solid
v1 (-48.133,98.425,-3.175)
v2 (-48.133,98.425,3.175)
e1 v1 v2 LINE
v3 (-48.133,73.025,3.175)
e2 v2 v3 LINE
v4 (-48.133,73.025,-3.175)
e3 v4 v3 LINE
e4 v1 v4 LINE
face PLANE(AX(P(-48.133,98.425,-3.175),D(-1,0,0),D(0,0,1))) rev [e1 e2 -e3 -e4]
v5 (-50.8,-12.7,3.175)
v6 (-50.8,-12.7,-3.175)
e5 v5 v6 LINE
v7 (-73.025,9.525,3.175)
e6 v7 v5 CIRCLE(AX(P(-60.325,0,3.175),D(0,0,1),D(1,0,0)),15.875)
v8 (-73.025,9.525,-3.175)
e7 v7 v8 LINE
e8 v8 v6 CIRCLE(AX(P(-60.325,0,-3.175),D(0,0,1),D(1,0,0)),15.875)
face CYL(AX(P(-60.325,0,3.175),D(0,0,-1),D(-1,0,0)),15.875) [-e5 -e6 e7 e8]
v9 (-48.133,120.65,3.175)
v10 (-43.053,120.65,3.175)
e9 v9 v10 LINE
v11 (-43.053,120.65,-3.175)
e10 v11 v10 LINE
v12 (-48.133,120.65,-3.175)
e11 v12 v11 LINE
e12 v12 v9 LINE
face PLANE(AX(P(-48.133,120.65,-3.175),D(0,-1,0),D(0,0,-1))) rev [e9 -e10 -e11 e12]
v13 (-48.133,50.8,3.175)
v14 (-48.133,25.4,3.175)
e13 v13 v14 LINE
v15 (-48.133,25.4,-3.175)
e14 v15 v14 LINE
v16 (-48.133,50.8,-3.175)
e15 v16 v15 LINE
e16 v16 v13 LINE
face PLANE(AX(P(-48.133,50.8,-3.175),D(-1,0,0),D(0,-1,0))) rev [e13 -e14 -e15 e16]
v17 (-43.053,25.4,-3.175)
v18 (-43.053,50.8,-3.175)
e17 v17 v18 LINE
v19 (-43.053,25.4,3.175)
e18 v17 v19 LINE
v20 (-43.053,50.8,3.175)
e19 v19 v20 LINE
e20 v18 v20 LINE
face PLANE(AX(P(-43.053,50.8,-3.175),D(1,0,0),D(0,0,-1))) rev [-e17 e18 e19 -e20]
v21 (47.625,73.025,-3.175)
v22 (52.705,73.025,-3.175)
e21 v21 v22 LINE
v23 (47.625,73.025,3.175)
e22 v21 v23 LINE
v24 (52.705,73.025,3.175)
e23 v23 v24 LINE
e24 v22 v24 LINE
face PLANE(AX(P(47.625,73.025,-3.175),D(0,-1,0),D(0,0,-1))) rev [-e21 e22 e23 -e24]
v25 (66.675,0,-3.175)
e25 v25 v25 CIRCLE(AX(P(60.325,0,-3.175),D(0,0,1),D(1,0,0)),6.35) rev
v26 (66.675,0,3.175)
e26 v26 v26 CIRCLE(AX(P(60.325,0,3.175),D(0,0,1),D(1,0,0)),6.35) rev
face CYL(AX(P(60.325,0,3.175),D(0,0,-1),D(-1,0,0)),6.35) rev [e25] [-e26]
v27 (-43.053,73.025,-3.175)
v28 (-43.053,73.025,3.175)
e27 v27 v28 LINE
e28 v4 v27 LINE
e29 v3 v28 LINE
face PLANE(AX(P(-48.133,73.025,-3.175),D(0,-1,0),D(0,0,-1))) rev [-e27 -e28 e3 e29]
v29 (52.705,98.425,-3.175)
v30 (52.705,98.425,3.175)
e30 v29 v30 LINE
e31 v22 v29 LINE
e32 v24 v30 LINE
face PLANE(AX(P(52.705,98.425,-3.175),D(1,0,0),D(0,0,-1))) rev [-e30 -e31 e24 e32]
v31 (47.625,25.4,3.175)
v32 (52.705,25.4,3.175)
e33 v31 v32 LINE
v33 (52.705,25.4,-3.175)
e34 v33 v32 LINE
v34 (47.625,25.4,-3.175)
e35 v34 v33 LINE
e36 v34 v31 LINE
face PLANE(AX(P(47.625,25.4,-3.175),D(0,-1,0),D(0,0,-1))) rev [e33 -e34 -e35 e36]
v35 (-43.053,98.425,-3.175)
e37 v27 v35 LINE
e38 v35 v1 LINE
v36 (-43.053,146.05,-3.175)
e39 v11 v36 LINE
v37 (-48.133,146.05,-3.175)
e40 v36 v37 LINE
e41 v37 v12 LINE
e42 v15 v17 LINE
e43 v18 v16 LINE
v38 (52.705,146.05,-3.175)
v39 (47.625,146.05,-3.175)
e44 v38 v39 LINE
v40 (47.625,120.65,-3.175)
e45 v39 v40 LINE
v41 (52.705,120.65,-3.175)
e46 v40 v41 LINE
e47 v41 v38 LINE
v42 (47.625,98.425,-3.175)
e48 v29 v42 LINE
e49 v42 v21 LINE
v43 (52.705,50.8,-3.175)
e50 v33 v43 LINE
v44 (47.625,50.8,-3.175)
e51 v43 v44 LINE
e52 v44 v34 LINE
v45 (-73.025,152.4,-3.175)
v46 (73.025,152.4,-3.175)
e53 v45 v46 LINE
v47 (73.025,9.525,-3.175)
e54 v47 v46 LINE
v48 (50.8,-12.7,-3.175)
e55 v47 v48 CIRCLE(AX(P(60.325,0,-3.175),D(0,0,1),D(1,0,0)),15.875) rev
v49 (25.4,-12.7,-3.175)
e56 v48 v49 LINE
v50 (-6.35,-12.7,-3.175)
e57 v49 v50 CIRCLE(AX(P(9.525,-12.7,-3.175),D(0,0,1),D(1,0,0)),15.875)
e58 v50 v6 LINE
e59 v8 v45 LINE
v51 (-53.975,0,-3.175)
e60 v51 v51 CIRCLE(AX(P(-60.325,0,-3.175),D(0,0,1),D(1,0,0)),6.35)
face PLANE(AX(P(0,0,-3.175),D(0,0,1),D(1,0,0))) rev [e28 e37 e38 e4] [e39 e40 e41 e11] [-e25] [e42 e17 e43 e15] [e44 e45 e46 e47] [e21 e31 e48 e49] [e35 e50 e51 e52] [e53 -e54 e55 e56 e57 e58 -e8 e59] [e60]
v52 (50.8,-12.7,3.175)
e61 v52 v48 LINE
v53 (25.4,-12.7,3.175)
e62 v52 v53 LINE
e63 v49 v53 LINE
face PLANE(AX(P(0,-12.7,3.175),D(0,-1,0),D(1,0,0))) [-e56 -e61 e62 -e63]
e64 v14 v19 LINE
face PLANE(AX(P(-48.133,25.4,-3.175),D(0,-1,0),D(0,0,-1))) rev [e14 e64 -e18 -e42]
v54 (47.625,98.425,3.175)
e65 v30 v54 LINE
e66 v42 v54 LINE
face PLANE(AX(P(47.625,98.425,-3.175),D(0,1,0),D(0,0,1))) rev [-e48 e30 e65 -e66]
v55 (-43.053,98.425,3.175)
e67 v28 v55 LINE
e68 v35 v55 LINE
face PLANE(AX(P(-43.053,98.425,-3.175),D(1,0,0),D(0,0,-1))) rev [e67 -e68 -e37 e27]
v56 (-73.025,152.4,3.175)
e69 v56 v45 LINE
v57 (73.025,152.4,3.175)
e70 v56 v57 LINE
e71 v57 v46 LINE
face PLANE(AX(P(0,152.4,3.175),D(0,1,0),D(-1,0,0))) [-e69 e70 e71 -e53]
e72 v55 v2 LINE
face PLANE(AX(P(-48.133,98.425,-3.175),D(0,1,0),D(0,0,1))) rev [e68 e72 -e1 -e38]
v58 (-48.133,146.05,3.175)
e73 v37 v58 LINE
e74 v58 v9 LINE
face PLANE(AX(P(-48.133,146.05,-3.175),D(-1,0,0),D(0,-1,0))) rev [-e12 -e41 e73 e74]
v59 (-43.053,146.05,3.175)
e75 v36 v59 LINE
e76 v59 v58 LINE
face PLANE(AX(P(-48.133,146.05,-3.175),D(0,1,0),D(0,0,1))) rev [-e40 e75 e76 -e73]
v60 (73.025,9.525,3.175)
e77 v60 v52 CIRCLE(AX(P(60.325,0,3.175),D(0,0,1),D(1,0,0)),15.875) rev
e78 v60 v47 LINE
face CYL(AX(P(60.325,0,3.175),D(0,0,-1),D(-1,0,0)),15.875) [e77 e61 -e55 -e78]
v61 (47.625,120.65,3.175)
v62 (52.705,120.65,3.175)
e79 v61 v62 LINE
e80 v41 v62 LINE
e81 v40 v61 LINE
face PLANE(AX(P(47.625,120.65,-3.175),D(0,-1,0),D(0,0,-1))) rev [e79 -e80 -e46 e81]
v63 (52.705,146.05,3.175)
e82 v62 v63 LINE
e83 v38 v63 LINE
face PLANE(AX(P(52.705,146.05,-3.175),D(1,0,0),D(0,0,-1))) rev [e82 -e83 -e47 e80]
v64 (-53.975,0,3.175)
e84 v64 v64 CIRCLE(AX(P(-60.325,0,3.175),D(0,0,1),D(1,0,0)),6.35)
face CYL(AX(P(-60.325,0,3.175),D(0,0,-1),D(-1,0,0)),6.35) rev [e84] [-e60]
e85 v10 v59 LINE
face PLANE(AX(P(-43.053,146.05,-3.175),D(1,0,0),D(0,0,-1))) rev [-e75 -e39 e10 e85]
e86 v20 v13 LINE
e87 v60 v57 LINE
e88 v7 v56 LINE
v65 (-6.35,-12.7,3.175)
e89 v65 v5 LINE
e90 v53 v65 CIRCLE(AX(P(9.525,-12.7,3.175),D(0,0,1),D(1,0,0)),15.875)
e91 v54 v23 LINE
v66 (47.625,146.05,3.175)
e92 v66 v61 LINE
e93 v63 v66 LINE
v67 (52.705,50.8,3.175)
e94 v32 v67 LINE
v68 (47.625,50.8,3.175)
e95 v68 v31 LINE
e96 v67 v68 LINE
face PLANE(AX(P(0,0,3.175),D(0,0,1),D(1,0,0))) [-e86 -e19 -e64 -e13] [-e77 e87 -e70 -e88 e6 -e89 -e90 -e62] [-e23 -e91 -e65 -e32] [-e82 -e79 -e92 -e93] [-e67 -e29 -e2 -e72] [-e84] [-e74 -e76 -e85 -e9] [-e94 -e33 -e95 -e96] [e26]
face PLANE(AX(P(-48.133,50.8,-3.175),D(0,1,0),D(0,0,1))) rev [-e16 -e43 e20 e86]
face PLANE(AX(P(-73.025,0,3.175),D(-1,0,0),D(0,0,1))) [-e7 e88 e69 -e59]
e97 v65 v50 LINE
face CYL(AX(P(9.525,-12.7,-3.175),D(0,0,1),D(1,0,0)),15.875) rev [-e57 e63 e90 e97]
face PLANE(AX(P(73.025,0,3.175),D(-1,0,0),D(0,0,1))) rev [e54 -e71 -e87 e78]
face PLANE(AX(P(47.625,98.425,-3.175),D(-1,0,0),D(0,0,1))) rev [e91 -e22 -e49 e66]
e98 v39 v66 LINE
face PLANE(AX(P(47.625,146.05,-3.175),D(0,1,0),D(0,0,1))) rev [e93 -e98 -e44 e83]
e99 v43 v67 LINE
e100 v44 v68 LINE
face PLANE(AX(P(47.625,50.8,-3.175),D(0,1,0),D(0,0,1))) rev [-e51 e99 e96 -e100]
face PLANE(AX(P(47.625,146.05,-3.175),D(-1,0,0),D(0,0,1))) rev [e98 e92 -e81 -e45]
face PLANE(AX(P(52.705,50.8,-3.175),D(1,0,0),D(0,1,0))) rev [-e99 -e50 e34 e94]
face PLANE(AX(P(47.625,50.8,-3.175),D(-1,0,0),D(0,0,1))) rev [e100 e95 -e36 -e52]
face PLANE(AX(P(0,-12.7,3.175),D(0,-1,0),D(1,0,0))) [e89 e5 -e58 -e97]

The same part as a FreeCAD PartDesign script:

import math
import FreeCAD as App
import Part
import Sketcher

V = App.Vector
Q = App.Units.Quantity


def add_polygon(sketch, points):
    """Adds a closed chain of lines whose ends are joined by coincident constraints."""
    first, n = sketch.GeometryCount, len(points)
    for a, b in zip(points, points[1:] + points[:1]):
        sketch.addGeometry(Part.LineSegment(App.Vector(*a, 0), App.Vector(*b, 0)), False)
    for i in range(n):
        sketch.addConstraint(Sketcher.Constraint("Coincident", first + i, 2, first + (i + 1) % n, 1))

doc = App.newDocument("Part")
body = doc.addObject("PartDesign::Body", "Body")

# Sketch on XY plane
sketch1 = body.newObject("Sketcher::SketchObject", "Sketch")
sketch1.AttachmentSupport = (doc.getObject("XY_Plane"), [""])
sketch1.MapMode = "FlatFace"
sketch1.addGeometry([
    Part.ArcOfCircle(Part.Circle(V(60, 0, 0), V(0, 0, 1), 16), math.radians(-127), math.radians(37)),  # 0
    Part.LineSegment(V(73, 10, 0), V(73, 152, 0)),  # 1
    Part.LineSegment(V(73, 152, 0), V(-73, 152, 0)),  # 2
    Part.LineSegment(V(-73, 152, 0), V(-73, 10, 0)),  # 3
    Part.ArcOfCircle(Part.Circle(V(-60, 0, 0), V(0, 0, 1), 16), math.radians(143), math.radians(307)),  # 4
    Part.LineSegment(V(-51, -13, 0), V(51, -13, 0)),  # 5
    Part.Circle(V(-60, 0, 0), V(0, 0, 1), 6),  # 6
    Part.Circle(V(60, 0, 0), V(0, 0, 1), 6),  # 7
], False)
sketch1.addConstraint([
    Sketcher.Constraint("Coincident", 0, 2, 1, 1),
    Sketcher.Constraint("Coincident", 1, 2, 2, 1),
    Sketcher.Constraint("Coincident", 2, 2, 3, 1),
    Sketcher.Constraint("Coincident", 3, 2, 4, 1),
    Sketcher.Constraint("Coincident", 4, 2, 5, 1),
    Sketcher.Constraint("Coincident", 5, 2, 0, 1),
    Sketcher.Constraint("Vertical", 1),
    Sketcher.Constraint("Horizontal", 2),
    Sketcher.Constraint("Vertical", 3),
    Sketcher.Constraint("Horizontal", 5),
    Sketcher.Constraint("Coincident", 6, 3, 4, 3),
    Sketcher.Constraint("Coincident", 7, 3, 0, 3),
    Sketcher.Constraint("Equal", 0, 4),
    Sketcher.Constraint("Equal", 6, 7),
    Sketcher.Constraint("Symmetric", 0, 3, 4, 3, -1, 1),
    Sketcher.Constraint("Symmetric", 0, 2, 3, 2, -2),
    Sketcher.Constraint("Diameter", 6, Q("0.5 in")),
    Sketcher.Constraint("DistanceX", 5, 1, 5, 2, Q("4 in")),
    Sketcher.Constraint("DistanceY", -1, 1, 1, 2, Q("6 in")),
    Sketcher.Constraint("Radius", 0, Q("0.625 in")),
    Sketcher.Constraint("DistanceX", 2, 2, 2, 1, Q("5.75 in")),
    Sketcher.Constraint("DistanceY", 4, 2, -1, 1, Q("0.5 in")),
])
pad1 = body.newObject("PartDesign::Pad", "Pad")
pad1.Profile = sketch1
pad1.Length = Q("0.25 in")
pad1.Midplane = True

# Sketch on XY plane
sketch2 = body.newObject("Sketcher::SketchObject", "Sketch001")
sketch2.AttachmentSupport = (doc.getObject("XY_Plane"), [""])
sketch2.MapMode = "FlatFace"
sketch2.AttachmentOffset = App.Placement(V(0, 0, 0.125 * 25.4), App.Rotation())
add_polygon(sketch2, [(-48, 146), (-48, 121), (-43, 121), (-43, 146)])  # lines 0-3
add_polygon(sketch2, [(-48, 98), (-48, 73), (-43, 73), (-43, 98)])  # lines 4-7
add_polygon(sketch2, [(-48, 51), (-48, 25), (-43, 25), (-43, 51)])  # lines 8-11
add_polygon(sketch2, [(48, 146), (48, 121), (53, 121), (53, 146)])  # lines 12-15
add_polygon(sketch2, [(48, 51), (48, 25), (53, 25), (53, 51)])  # lines 16-19
add_polygon(sketch2, [(48, 98), (48, 73), (53, 73), (53, 98)])  # lines 20-23
sketch2.addConstraint([
    Sketcher.Constraint("Vertical", 0),
    Sketcher.Constraint("Horizontal", 1),
    Sketcher.Constraint("Vertical", 2),
    Sketcher.Constraint("Horizontal", 3),
    Sketcher.Constraint("Vertical", 4),
    Sketcher.Constraint("Horizontal", 5),
    Sketcher.Constraint("Vertical", 6),
    Sketcher.Constraint("Horizontal", 7),
    Sketcher.Constraint("Vertical", 8),
    Sketcher.Constraint("Horizontal", 9),
    Sketcher.Constraint("Vertical", 10),
    Sketcher.Constraint("Horizontal", 11),
    Sketcher.Constraint("Vertical", 12),
    Sketcher.Constraint("Horizontal", 13),
    Sketcher.Constraint("Vertical", 14),
    Sketcher.Constraint("Horizontal", 15),
    Sketcher.Constraint("Vertical", 16),
    Sketcher.Constraint("Horizontal", 17),
    Sketcher.Constraint("Vertical", 18),
    Sketcher.Constraint("Horizontal", 19),
    Sketcher.Constraint("Vertical", 20),
    Sketcher.Constraint("Horizontal", 21),
    Sketcher.Constraint("Vertical", 22),
    Sketcher.Constraint("Horizontal", 23),
    Sketcher.Constraint("Horizontal", 1, 2, 12, 2),
    Sketcher.Constraint("Horizontal", 3, 2, 14, 2),
    Sketcher.Constraint("Horizontal", 9, 2, 16, 2),
    Sketcher.Constraint("Horizontal", 11, 2, 18, 2),
    Sketcher.Constraint("Horizontal", 5, 2, 20, 2),
    Sketcher.Constraint("Horizontal", 7, 2, 22, 2),
    Sketcher.Constraint("Vertical", 3, 2, 4, 2),
    Sketcher.Constraint("Vertical", 2, 2, 5, 2),
    Sketcher.Constraint("Vertical", 7, 2, 8, 2),
    Sketcher.Constraint("Vertical", 6, 2, 9, 2),
    Sketcher.Constraint("Vertical", 15, 2, 16, 2),
    Sketcher.Constraint("Vertical", 14, 2, 17, 2),
    Sketcher.Constraint("Vertical", 19, 2, 20, 2),
    Sketcher.Constraint("Vertical", 18, 2, 21, 2),
    Sketcher.Constraint("Equal", 11, 13),
    Sketcher.Constraint("Equal", 2, 4),
    Sketcher.Constraint("Equal", 6, 8),
    Sketcher.Constraint("DistanceY", 0, 2, 0, 1, Q("1 in")),
    Sketcher.Constraint("DistanceX", 1, 1, 1, 2, Q("0.2 in")),
    Sketcher.Constraint("DistanceY", -1, 1, 8, 2, Q("1 in")),
    Sketcher.Constraint("DistanceY", -1, 1, 0, 2, Q("4.75 in")),
    Sketcher.Constraint("DistanceX", 1, 2, 12, 2, Q("3.57 in")),
    Sketcher.Constraint("DistanceX", 0, 2, -1, 1, Q("1.895 in")),
    Sketcher.Constraint("DistanceY", -1, 1, 4, 2, Q("2.875 in")),
])
pocket1 = body.newObject("PartDesign::Pocket", "Pocket")
pocket1.Profile = sketch2
pocket1.Type = "ThroughAll"

# Sketch on XY plane
sketch3 = body.newObject("Sketcher::SketchObject", "Sketch002")
sketch3.AttachmentSupport = (doc.getObject("XY_Plane"), [""])
sketch3.MapMode = "FlatFace"
sketch3.AttachmentOffset = App.Placement(V(0, 0, 0.125 * 25.4), App.Rotation())
sketch3.addGeometry(Part.Circle(V(10, -13, 0), V(0, 0, 1), 16), False)
sketch3.addConstraint([
    Sketcher.Constraint("Diameter", 0, Q("1.25 in")),
    Sketcher.Constraint("DistanceY", 0, 3, -1, 1, Q("0.5 in")),
    Sketcher.Constraint("DistanceX", -1, 1, 0, 3, Q("0.375 in")),
])
pocket2 = body.newObject("PartDesign::Pocket", "Pocket001")
pocket2.Profile = sketch3
pocket2.Type = "ThroughAll"

doc.recompute()
